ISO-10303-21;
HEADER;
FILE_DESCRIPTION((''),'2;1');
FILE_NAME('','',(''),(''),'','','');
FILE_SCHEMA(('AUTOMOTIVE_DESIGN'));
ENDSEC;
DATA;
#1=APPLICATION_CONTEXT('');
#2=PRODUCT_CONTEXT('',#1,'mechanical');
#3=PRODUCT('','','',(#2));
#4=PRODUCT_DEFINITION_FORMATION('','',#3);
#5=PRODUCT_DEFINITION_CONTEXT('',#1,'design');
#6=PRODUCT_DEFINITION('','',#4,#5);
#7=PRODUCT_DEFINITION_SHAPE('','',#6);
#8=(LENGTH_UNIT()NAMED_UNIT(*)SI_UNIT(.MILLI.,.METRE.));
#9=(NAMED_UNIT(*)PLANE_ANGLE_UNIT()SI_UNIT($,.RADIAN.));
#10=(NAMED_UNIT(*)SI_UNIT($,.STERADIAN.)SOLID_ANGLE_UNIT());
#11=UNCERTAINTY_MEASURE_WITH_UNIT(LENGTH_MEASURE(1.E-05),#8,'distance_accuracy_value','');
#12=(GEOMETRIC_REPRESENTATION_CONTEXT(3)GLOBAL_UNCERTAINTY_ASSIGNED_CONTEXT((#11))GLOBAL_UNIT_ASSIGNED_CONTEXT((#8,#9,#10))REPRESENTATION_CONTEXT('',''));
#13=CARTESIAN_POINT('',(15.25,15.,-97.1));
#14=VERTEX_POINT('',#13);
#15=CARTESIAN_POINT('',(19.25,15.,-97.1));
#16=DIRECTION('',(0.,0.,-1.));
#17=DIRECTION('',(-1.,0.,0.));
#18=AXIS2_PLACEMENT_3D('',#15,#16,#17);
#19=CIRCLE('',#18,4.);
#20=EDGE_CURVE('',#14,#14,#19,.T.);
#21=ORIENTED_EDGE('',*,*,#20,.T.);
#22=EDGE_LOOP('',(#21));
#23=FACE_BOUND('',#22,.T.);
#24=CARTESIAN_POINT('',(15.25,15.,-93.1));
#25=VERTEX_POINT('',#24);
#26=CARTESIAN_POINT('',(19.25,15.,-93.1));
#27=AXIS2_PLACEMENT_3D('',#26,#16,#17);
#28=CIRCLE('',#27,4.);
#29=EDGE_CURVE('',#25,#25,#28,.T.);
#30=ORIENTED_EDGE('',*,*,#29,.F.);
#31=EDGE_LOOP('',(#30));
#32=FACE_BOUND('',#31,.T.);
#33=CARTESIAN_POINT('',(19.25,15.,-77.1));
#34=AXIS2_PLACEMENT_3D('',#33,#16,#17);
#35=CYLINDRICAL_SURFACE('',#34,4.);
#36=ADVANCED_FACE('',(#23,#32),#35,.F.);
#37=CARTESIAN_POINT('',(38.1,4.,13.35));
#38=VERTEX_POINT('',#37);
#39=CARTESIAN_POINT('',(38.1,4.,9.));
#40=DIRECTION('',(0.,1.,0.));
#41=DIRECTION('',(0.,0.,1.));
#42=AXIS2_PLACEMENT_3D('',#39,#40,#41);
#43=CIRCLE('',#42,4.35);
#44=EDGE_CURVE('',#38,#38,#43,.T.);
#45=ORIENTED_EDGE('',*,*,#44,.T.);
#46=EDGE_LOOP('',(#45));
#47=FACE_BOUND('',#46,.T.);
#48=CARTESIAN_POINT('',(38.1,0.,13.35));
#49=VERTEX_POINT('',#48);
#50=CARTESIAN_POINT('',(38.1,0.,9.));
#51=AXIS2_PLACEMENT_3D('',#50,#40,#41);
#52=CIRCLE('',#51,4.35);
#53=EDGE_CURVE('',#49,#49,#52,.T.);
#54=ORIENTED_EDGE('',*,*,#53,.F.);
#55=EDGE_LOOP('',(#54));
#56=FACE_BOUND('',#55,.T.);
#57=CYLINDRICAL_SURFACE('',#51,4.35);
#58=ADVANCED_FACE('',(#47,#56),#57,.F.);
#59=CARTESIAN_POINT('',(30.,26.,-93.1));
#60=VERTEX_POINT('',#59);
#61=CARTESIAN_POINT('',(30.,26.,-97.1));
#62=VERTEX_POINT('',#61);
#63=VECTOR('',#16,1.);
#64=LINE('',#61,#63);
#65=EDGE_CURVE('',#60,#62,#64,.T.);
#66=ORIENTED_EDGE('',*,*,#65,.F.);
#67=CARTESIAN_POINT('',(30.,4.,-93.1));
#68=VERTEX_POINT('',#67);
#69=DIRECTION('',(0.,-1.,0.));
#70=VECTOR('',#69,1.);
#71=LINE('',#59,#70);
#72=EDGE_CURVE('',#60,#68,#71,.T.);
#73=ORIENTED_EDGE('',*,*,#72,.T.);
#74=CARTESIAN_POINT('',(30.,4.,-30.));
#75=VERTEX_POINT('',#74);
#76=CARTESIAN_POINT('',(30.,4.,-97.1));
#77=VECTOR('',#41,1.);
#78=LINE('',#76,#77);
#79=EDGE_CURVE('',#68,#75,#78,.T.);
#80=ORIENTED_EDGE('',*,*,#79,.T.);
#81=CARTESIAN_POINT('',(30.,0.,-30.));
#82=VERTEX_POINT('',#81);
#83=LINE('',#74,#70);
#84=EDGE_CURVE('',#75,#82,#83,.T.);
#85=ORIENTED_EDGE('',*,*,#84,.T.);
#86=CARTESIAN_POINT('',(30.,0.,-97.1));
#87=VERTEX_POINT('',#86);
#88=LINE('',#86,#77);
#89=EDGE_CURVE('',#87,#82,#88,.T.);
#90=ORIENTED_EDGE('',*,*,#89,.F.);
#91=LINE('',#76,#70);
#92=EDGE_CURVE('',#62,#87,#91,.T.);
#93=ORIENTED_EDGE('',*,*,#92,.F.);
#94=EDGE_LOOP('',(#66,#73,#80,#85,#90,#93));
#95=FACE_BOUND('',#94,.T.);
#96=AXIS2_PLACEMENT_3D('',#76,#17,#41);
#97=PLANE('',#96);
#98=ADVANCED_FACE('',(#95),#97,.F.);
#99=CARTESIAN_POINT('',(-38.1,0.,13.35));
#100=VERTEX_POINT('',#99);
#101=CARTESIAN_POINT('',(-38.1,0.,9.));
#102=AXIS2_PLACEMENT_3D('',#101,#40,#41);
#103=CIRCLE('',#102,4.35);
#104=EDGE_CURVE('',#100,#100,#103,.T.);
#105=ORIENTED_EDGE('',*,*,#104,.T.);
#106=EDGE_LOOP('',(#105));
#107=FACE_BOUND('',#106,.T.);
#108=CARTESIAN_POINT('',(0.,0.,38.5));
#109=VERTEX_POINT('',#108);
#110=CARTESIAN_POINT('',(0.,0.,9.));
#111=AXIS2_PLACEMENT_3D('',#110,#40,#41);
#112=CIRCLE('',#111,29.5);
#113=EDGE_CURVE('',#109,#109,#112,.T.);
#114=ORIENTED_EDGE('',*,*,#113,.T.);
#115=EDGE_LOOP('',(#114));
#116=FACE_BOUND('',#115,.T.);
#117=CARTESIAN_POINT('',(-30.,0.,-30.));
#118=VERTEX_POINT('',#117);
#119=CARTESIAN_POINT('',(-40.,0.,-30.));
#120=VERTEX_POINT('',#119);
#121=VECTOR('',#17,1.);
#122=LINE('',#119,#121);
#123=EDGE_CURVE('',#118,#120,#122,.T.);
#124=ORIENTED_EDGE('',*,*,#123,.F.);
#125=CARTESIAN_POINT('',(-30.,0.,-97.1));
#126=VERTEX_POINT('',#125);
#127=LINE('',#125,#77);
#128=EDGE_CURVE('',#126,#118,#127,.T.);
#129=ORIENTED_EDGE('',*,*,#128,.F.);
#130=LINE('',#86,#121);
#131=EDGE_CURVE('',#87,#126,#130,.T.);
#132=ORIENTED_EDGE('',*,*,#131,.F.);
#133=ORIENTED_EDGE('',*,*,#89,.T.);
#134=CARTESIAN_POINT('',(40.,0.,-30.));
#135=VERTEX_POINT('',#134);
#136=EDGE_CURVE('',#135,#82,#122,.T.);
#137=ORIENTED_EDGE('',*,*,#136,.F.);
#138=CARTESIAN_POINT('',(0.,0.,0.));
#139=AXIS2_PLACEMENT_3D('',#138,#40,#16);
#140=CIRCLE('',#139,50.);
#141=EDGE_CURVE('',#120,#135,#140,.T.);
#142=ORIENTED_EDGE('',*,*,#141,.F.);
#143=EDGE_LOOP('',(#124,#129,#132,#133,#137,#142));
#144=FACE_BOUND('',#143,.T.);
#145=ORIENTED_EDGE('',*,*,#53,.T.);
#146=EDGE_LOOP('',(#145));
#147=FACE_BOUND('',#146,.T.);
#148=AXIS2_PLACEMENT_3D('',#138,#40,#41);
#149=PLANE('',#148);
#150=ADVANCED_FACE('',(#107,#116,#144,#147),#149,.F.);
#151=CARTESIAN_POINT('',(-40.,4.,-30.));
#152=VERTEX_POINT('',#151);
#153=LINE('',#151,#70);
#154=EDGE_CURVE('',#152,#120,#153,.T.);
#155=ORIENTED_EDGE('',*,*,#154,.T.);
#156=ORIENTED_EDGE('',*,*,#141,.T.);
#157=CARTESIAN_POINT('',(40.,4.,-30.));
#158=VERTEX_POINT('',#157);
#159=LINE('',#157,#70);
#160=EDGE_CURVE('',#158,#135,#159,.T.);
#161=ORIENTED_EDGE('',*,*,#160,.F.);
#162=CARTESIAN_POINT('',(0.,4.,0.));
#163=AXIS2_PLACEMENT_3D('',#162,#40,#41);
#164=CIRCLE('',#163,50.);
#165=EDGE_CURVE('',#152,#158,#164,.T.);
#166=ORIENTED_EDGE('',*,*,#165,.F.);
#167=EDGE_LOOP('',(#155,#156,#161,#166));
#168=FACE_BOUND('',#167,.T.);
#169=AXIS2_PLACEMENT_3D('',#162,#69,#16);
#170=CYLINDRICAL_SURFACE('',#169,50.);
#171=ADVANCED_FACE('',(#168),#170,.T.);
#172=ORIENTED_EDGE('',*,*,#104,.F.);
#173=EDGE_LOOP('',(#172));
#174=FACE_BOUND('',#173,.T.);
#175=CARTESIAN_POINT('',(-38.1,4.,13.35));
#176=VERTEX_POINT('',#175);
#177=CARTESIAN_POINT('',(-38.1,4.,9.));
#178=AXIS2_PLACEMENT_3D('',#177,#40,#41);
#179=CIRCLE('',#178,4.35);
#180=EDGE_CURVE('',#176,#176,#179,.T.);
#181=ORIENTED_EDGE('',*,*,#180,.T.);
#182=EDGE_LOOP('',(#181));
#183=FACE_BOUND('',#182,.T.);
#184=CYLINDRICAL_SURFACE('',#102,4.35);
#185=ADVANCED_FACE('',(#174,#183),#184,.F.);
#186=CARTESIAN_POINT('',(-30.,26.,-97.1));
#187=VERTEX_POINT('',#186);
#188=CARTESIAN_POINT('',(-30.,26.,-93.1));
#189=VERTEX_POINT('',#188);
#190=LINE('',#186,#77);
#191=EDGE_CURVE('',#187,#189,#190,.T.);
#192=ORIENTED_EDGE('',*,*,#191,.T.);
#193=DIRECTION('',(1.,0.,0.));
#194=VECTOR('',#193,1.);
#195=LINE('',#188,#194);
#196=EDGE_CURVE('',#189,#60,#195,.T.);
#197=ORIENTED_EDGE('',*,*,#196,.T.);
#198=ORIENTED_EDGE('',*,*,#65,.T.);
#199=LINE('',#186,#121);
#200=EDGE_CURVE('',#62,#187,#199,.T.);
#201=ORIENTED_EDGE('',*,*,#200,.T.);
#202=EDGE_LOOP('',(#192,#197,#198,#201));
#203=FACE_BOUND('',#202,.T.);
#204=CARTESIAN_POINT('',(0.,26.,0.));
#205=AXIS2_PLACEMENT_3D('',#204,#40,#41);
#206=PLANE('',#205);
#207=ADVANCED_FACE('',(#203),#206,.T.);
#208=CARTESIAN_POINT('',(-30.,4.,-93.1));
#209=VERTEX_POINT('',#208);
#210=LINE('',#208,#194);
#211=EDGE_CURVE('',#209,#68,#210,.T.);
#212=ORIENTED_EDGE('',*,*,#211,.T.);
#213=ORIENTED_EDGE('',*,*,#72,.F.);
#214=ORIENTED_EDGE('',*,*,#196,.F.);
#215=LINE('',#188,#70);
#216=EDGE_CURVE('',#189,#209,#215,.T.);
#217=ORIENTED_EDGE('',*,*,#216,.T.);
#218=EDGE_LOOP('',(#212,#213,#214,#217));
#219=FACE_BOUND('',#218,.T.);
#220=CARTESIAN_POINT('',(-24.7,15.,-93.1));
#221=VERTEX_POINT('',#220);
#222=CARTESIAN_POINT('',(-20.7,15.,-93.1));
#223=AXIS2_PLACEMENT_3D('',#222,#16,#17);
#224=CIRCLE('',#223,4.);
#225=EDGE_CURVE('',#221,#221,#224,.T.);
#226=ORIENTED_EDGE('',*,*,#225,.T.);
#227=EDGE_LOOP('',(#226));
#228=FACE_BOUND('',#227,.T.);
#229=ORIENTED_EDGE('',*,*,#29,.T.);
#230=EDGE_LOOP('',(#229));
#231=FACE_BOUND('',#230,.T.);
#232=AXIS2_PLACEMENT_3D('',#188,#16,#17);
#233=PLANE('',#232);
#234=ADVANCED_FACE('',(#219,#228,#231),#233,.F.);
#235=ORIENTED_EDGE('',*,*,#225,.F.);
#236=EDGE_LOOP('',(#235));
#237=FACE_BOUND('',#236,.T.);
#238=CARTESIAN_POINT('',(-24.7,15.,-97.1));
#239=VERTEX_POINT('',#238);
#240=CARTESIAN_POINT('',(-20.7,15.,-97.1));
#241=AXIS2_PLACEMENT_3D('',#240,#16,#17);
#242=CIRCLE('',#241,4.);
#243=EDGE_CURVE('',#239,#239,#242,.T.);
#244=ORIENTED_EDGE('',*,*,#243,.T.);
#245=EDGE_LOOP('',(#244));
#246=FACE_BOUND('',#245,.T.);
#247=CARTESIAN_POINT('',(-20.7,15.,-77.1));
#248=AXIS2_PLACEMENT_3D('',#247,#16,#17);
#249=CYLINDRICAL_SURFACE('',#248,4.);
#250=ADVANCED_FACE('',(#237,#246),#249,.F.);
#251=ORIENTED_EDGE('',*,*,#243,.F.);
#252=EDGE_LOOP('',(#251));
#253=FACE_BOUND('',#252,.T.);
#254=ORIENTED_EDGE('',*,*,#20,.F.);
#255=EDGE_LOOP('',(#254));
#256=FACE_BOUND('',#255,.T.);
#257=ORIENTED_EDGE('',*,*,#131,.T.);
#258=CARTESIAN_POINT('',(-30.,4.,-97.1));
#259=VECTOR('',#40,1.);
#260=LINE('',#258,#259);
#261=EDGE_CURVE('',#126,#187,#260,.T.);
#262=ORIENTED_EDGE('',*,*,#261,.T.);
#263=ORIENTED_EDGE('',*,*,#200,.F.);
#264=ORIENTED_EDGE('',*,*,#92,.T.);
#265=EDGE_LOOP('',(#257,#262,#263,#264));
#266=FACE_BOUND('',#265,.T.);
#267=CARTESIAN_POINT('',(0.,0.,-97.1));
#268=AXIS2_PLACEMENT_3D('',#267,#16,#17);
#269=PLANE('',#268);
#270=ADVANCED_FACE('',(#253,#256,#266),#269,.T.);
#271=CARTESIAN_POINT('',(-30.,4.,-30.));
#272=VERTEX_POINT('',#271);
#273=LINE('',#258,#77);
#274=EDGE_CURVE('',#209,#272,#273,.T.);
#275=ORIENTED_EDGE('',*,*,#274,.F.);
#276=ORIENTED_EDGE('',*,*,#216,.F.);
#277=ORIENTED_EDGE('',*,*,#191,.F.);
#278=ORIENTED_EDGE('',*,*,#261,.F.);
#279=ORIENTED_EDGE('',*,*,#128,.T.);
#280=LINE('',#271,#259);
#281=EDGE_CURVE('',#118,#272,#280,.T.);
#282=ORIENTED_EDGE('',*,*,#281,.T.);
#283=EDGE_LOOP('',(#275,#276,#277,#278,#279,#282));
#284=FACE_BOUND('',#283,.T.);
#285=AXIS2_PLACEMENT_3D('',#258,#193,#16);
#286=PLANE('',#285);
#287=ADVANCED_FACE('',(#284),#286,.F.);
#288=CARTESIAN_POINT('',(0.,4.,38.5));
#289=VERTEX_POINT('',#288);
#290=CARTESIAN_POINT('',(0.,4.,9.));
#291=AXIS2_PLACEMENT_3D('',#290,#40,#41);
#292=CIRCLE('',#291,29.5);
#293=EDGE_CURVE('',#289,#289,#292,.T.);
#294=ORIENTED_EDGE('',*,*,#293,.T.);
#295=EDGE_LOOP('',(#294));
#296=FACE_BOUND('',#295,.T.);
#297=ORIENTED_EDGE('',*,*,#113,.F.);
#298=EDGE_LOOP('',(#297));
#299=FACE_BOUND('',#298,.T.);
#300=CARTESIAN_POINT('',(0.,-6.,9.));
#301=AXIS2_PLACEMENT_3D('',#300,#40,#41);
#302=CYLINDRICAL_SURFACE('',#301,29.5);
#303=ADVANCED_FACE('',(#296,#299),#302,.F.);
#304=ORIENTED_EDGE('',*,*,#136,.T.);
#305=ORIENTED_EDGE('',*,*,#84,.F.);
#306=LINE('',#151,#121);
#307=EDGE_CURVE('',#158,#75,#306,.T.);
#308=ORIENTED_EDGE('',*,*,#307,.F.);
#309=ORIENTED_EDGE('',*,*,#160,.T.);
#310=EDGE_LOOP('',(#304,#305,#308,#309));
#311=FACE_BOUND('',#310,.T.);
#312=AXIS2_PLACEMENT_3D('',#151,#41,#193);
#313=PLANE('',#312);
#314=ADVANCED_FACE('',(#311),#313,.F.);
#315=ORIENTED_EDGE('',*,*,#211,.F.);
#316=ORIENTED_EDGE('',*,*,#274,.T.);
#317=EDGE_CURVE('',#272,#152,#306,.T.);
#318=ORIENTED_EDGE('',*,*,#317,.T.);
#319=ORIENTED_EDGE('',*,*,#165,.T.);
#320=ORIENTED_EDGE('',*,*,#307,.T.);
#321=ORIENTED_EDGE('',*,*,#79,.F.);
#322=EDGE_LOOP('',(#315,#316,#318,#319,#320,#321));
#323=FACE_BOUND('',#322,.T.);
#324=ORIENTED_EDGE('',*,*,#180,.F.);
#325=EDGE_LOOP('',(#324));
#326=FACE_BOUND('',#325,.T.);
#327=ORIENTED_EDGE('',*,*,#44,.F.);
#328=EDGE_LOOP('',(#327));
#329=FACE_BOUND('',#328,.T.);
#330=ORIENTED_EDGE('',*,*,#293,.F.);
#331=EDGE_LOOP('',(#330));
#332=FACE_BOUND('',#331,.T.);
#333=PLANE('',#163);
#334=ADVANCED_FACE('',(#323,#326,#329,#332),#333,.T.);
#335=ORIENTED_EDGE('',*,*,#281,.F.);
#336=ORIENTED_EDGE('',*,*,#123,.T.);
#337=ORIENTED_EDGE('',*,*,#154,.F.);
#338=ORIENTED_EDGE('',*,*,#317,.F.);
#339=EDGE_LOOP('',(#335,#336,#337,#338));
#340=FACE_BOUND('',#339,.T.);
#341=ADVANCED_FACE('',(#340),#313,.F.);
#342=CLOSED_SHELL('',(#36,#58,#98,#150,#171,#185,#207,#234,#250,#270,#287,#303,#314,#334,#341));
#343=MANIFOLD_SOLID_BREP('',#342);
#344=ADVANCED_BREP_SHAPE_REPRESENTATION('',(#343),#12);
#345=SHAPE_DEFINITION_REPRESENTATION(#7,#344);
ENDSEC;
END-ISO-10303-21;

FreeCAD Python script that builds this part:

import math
import FreeCAD as App
import Part
import Sketcher

V = App.Vector

doc = App.newDocument("Part")
body = doc.addObject("PartDesign::Body", "Body")

# Sketch on XZ plane
sketch1 = doc.addObject("Sketcher::SketchObject", "Sketch")
body.addObject(sketch1)
sketch1.AttachmentSupport = (doc.XZ_Plane, [""])
sketch1.MapMode = "FlatFace"
sketch1.addGeometry([
    Part.LineSegment(V(40, -30, 0), V(-40, -30, 0)),
    Part.ArcOfCircle(Part.Circle(V(0, 0, 0), V(0, 0, 1), 50), math.radians(180), math.radians(217)),
    Part.ArcOfCircle(Part.Circle(V(0, 0, 0), V(0, 0, 1), 50), math.radians(0), math.radians(180)),
    Part.ArcOfCircle(Part.Circle(V(0, 0, 0), V(0, 0, 1), 50), math.radians(-37), math.radians(0)),
], False)
sketch1.addConstraint([
    Sketcher.Constraint("Coincident", 0, 2, 1, 2),
    Sketcher.Constraint("Tangent", 1, 1, 2, 2),
    Sketcher.Constraint("Tangent", 2, 1, 3, 2),
    Sketcher.Constraint("Coincident", 3, 1, 0, 1),
    Sketcher.Constraint("Horizontal", 0),
    Sketcher.Constraint("Coincident", 1, 3, -1, 1),
    Sketcher.Constraint("Equal", 1, 2),
    Sketcher.Constraint("Equal", 2, 3),
    Sketcher.Constraint("PointOnObject", 1, 1, -1),
    Sketcher.Constraint("PointOnObject", 2, 1, -1),
    Sketcher.Constraint("Radius", 1, 50.0),
    Sketcher.Constraint("DistanceX", 0, 2, 0, 1, 80.0),
])
pad1 = doc.addObject("PartDesign::Pad", "Pad")
body.addObject(pad1)
pad1.Profile = sketch1
pad1.Length = 4
pad1.Reversed = True

# Sketch on XZ plane
sketch2 = doc.addObject("Sketcher::SketchObject", "Sketch001")
body.addObject(sketch2)
sketch2.AttachmentSupport = (doc.XZ_Plane, [""])
sketch2.MapMode = "FlatFace"
sketch2.AttachmentOffset = App.Placement(V(0, 0, -4), App.Rotation())
sketch2.addGeometry([
    Part.Circle(V(-38.1, 9, 0), V(0, 0, 1), 4.3),
    Part.Circle(V(38.1, 9, 0), V(0, 0, 1), 4.3),
], False)
sketch2.addConstraint([
    Sketcher.Constraint("Equal", 0, 1),
    Sketcher.Constraint("Symmetric", 0, 3, 1, 3, -2),
    Sketcher.Constraint("Diameter", 0, 8.7),
    Sketcher.Constraint("DistanceY", -1, 1, 0, 3, 9.0),
    Sketcher.Constraint("DistanceX", 0, 3, -1, 1, 38.1),
])
pocket1 = doc.addObject("PartDesign::Pocket", "Pocket")
body.addObject(pocket1)
pocket1.Profile = sketch2
pocket1.Length = 4
pocket1.Reversed = True

# Sketch on XY plane
sketch3 = doc.addObject("Sketcher::SketchObject", "Sketch002")
body.addObject(sketch3)
sketch3.AttachmentSupport = (doc.XY_Plane, [""])
sketch3.MapMode = "FlatFace"
sketch3.AttachmentOffset = App.Placement(V(0, 0, -30), App.Rotation())
sketch3.addGeometry([
    Part.LineSegment(V(30, 4, 0), V(30, 0, 0)),
    Part.LineSegment(V(30, 0, 0), V(-30, 0, 0)),
    Part.LineSegment(V(-30, 0, 0), V(-30, 4, 0)),
    Part.LineSegment(V(-30, 4, 0), V(30, 4, 0)),
], False)
sketch3.addConstraint([
    Sketcher.Constraint("Coincident", 0, 2, 1, 1),
    Sketcher.Constraint("Coincident", 1, 2, 2, 1),
    Sketcher.Constraint("Coincident", 2, 2, 3, 1),
    Sketcher.Constraint("Coincident", 3, 2, 0, 1),
    Sketcher.Constraint("Vertical", 0),
    Sketcher.Constraint("Horizontal", 1),
    Sketcher.Constraint("Vertical", 2),
    Sketcher.Constraint("Horizontal", 3),
    Sketcher.Constraint("Symmetric", 0, 2, 1, 2, -1, 1),
    Sketcher.Constraint("DistanceX", 1, 2, 1, 1, 60.0),
    Sketcher.Constraint("DistanceY", 0, 2, 0, 1, 4.0),
])
pad2 = doc.addObject("PartDesign::Pad", "Pad001")
body.addObject(pad2)
pad2.Profile = sketch3
pad2.Length = 67.1
pad2.Reversed = True

# Sketch on XZ plane
sketch4 = doc.addObject("Sketcher::SketchObject", "Sketch003")
body.addObject(sketch4)
sketch4.AttachmentSupport = (doc.XZ_Plane, [""])
sketch4.MapMode = "FlatFace"
sketch4.AttachmentOffset = App.Placement(V(0, 0, -4), App.Rotation())
sketch4.addGeometry([
    Part.LineSegment(V(-30, -97.1, 0), V(-30, -93.1, 0)),
    Part.LineSegment(V(-30, -93.1, 0), V(30, -93.1, 0)),
    Part.LineSegment(V(30, -93.1, 0), V(30, -97.1, 0)),
    Part.LineSegment(V(30, -97.1, 0), V(-30, -97.1, 0)),
], False)
sketch4.addConstraint([
    Sketcher.Constraint("Coincident", 0, 2, 1, 1),
    Sketcher.Constraint("Coincident", 1, 2, 2, 1),
    Sketcher.Constraint("Coincident", 2, 2, 3, 1),
    Sketcher.Constraint("Coincident", 3, 2, 0, 1),
    Sketcher.Constraint("Vertical", 0),
    Sketcher.Constraint("Horizontal", 1),
    Sketcher.Constraint("Vertical", 2),
    Sketcher.Constraint("Horizontal", 3),
    Sketcher.Constraint("DistanceX", 1, 1, 1, 2, 60.0),
    Sketcher.Constraint("DistanceY", 0, 1, 0, 2, 4.0),
    Sketcher.Constraint("DistanceX", 0, 2, -1, 1, 30.0),
    Sketcher.Constraint("DistanceY", 0, 2, -1, 1, 93.1),
])
pad3 = doc.addObject("PartDesign::Pad", "Pad002")
body.addObject(pad3)
pad3.Profile = sketch4
pad3.Length = 22
pad3.Reversed = True

# Sketch on XY plane
sketch5 = doc.addObject("Sketcher::SketchObject", "Sketch004")
body.addObject(sketch5)
sketch5.AttachmentSupport = (doc.XY_Plane, [""])
sketch5.MapMode = "FlatFace"
sketch5.AttachmentOffset = App.Placement(V(0, 0, -97.1), App.Rotation())
sketch5.addGeometry([
    Part.Circle(V(19.2, 15, 0), V(0, 0, 1), 4),
    Part.Circle(V(-20.7, 15, 0), V(0, 0, 1), 4),
], False)
sketch5.addConstraint([
    Sketcher.Constraint("Equal", 0, 1),
    Sketcher.Constraint("Horizontal", 0, 3, 1, 3),
    Sketcher.Constraint("Diameter", 0, 8.0),
    Sketcher.Constraint("DistanceY", -1, 1, 0, 3, 15.0),
    Sketcher.Constraint("DistanceX", 1, 3, -1, 1, 20.7),
    Sketcher.Constraint("DistanceX", -1, 1, 0, 3, 19.25),
])
pocket2 = doc.addObject("PartDesign::Pocket", "Pocket001")
body.addObject(pocket2)
pocket2.Profile = sketch5
pocket2.Length = 20
pocket2.Reversed = True

# Sketch on XZ plane
sketch6 = doc.addObject("Sketcher::SketchObject", "Sketch005")
body.addObject(sketch6)
sketch6.AttachmentSupport = (doc.XZ_Plane, [""])
sketch6.MapMode = "FlatFace"
sketch6.AttachmentOffset = App.Placement(V(0, 0, -4), App.Rotation())
sketch6.addGeometry(Part.Circle(V(0, 9, 0), V(0, 0, 1), 30), False)
sketch6.addConstraint([
    Sketcher.Constraint("PointOnObject", 0, 3, -2),
    Sketcher.Constraint("Diameter", 0, 59.0),
    Sketcher.Constraint("DistanceY", -1, 1, 0, 3, 9.0),
])
pocket3 = doc.addObject("PartDesign::Pocket", "Pocket002")
body.addObject(pocket3)
pocket3.Profile = sketch6
pocket3.Length = 10
pocket3.Reversed = True

doc.recompute()
